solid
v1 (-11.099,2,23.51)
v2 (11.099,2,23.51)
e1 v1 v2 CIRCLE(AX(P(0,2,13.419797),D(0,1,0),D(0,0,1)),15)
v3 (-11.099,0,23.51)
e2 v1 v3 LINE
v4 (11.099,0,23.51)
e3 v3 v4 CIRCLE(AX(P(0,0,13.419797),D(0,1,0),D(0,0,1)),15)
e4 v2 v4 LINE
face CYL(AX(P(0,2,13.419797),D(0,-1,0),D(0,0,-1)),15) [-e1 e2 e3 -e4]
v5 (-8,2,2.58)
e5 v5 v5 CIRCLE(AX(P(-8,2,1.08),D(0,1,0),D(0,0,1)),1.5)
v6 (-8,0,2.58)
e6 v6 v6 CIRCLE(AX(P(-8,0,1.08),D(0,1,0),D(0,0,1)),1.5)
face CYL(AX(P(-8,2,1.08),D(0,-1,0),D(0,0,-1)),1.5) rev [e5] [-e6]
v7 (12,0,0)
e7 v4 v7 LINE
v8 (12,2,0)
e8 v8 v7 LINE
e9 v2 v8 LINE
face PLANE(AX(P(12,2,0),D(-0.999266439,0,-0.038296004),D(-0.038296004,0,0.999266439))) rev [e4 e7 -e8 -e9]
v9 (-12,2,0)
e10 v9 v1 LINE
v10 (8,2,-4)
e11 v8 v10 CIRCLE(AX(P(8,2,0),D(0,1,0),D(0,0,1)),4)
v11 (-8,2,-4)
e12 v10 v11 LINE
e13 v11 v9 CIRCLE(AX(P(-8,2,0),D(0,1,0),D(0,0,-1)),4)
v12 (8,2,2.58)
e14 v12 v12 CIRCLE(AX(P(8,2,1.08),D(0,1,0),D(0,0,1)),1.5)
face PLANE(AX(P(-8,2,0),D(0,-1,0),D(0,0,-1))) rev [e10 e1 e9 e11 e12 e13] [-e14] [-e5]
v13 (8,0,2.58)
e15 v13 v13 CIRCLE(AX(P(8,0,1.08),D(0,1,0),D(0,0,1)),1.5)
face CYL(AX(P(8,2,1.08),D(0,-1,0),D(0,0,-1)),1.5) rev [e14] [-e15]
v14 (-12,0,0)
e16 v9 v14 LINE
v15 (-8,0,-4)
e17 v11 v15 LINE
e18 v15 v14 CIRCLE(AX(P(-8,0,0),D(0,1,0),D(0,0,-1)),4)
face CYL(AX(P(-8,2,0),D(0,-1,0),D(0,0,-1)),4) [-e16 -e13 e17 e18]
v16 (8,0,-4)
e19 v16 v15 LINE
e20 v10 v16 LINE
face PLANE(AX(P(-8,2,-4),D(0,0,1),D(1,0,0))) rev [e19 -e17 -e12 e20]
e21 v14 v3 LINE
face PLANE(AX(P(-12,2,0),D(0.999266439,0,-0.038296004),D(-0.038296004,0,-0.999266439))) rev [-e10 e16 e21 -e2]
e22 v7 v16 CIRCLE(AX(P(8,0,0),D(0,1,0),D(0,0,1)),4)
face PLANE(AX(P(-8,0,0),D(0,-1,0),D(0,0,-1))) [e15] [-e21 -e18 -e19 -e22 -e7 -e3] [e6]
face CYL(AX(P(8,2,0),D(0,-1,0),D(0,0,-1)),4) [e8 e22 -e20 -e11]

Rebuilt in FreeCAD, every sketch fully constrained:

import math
import FreeCAD as App
import Part
import Sketcher
from FreeCAD import Vector
Q = App.Units.Quantity

doc = App.newDocument("Part")
body = doc.addObject("PartDesign::Body", "Body")

# Sketch on XZ plane
sketch1 = doc.addObject("Sketcher::SketchObject", "Sketch")
body.addObject(sketch1)
sketch1.AttachmentSupport = (doc.XZ_Plane, [""])
sketch1.MapMode = "FlatFace"
sketch1.addGeometry(Part.LineSegment(Vector(8, -4, 0), Vector(-8, -4, 0)), False)
sketch1.addGeometry(Part.ArcOfCircle(Part.Circle(Vector(-8, 0, 0), Vector(0, 0, 1), 4), math.radians(180), math.radians(270)), False)
sketch1.addGeometry(Part.LineSegment(Vector(-12, 0, 0), Vector(-11.1, 23.5, 0)), False)
sketch1.addGeometry(Part.ArcOfCircle(Part.Circle(Vector(0, 13.4, 0), Vector(0, 0, 1), 15), math.radians(42), math.radians(138)), False)
sketch1.addGeometry(Part.LineSegment(Vector(11.1, 23.5, 0), Vector(12, 0, 0)), False)
sketch1.addGeometry(Part.ArcOfCircle(Part.Circle(Vector(8, 0, 0), Vector(0, 0, 1), 4), math.radians(-90), math.radians(0)), False)
sketch1.addGeometry(Part.Circle(Vector(8, 1.1, 0), Vector(0, 0, 1), 1.5), False)
sketch1.addGeometry(Part.Circle(Vector(-8, 1.1, 0), Vector(0, 0, 1), 1.5), False)
sketch1.addConstraint(Sketcher.Constraint("Tangent", 0, 2, 1, 2))
sketch1.addConstraint(Sketcher.Constraint("Coincident", 1, 1, 2, 1))
sketch1.addConstraint(Sketcher.Constraint("Coincident", 2, 2, 3, 2))
sketch1.addConstraint(Sketcher.Constraint("Coincident", 3, 1, 4, 1))
sketch1.addConstraint(Sketcher.Constraint("Coincident", 4, 2, 5, 2))
sketch1.addConstraint(Sketcher.Constraint("Tangent", 5, 1, 0, 1))
sketch1.addConstraint(Sketcher.Constraint("Horizontal", 0))
sketch1.addConstraint(Sketcher.Constraint("Equal", 1, 5))
sketch1.addConstraint(Sketcher.Constraint("Equal", 6, 7))
sketch1.addConstraint(Sketcher.Constraint("Symmetric", 1, 3, 5, 3, -1, 1))
sketch1.addConstraint(Sketcher.Constraint("Symmetric", 6, 3, 7, 3, -2))
sketch1.addConstraint(Sketcher.Constraint("Symmetric", 2, 2, 3, 1, -2))
sketch1.addConstraint(Sketcher.Constraint("PointOnObject", 1, 1, -1))
sketch1.addConstraint(Sketcher.Constraint("PointOnObject", 4, 2, -1))
sketch1.addConstraint(Sketcher.Constraint("Vertical", 5, 3, 6, 3))
sketch1.addConstraint(Sketcher.Constraint("Diameter", 6, Q("3 mm")))
sketch1.addConstraint(Sketcher.Constraint("Radius", 1, Q("4 mm")))
sketch1.addConstraint(Sketcher.Constraint("Radius", 3, Q("15 mm")))
sketch1.addConstraint(Sketcher.Constraint("DistanceX", 0, 2, 0, 1, Q("16 mm")))
sketch1.addConstraint(Sketcher.Constraint("DistanceY", -1, 1, 6, 3, Q("1.08 mm")))
sketch1.addConstraint(Sketcher.Constraint("DistanceY", -1, 1, 2, 2, Q("23.51 mm")))
sketch1.addConstraint(Sketcher.Constraint("DistanceX", 2, 2, -1, 1, Q("11.099 mm")))
pad1 = doc.addObject("PartDesign::Pad", "Pad")
body.addObject(pad1)
pad1.Profile = sketch1
pad1.Length = 2
pad1.Reversed = True

doc.recompute()
